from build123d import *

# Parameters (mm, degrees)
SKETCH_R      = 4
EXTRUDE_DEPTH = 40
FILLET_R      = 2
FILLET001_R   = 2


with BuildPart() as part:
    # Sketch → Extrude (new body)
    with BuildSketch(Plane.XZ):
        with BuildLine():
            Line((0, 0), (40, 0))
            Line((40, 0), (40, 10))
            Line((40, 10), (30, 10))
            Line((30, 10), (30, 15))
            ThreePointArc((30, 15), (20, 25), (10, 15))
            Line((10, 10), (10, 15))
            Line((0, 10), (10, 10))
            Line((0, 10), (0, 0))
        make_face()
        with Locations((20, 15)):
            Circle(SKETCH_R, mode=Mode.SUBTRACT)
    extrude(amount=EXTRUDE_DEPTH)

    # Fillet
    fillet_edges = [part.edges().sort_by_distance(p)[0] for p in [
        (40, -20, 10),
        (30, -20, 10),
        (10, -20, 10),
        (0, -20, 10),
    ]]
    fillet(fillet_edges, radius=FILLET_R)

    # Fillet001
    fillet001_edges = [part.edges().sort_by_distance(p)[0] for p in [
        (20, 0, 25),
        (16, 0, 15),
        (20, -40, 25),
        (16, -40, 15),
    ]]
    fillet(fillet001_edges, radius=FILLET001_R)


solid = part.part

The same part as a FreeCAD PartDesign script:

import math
import FreeCAD as App
import Part
import Sketcher

V = App.Vector


def edges_at(feature, points):
    """Names of the edges that pass closest to the given points."""
    edges = feature.Shape.Edges
    near = lambda p: min(range(len(edges)), key=lambda i: edges[i].distToShape(Part.Vertex(*p))[0])
    return sorted({f"Edge{near(p) + 1}" for p in points})

doc = App.newDocument("Part")
body = doc.addObject("PartDesign::Body", "Body")

sketch1 = body.newObject("Sketcher::SketchObject", "Sketch")
sketch1.AttachmentSupport = (doc.getObject("XZ_Plane"), [""])
sketch1.MapMode = "FlatFace"
sketch1.addGeometry(Part.LineSegment(V(0, 0, 0), V(40, 0, 0)), False)
sketch1.addGeometry(Part.LineSegment(V(40, 0, 0), V(40, 10, 0)), False)
sketch1.addGeometry(Part.LineSegment(V(40, 10, 0), V(30, 10, 0)), False)
sketch1.addGeometry(Part.LineSegment(V(30, 10, 0), V(30, 15, 0)), False)
sketch1.addGeometry(Part.ArcOfCircle(Part.Circle(V(20, 15, 0), V(0, 0, 1), 10), math.radians(0), math.radians(180)), False)
sketch1.addGeometry(Part.LineSegment(V(10, 15, 0), V(10, 10, 0)), False)
sketch1.addGeometry(Part.LineSegment(V(10, 10, 0), V(0, 10, 0)), False)
sketch1.addGeometry(Part.LineSegment(V(0, 10, 0), V(0, 0, 0)), False)
sketch1.addGeometry(Part.Circle(V(20, 15, 0), V(0, 0, 1), 4), False)
sketch1.addConstraint(Sketcher.Constraint("Coincident", 0, 2, 1, 1))
sketch1.addConstraint(Sketcher.Constraint("Coincident", 1, 2, 2, 1))
sketch1.addConstraint(Sketcher.Constraint("Coincident", 2, 2, 3, 1))
sketch1.addConstraint(Sketcher.Constraint("Tangent", 3, 2, 4, 1))
sketch1.addConstraint(Sketcher.Constraint("Tangent", 4, 2, 5, 1))
sketch1.addConstraint(Sketcher.Constraint("Coincident", 5, 2, 6, 1))
sketch1.addConstraint(Sketcher.Constraint("Coincident", 6, 2, 7, 1))
sketch1.addConstraint(Sketcher.Constraint("Coincident", 7, 2, 0, 1))
sketch1.addConstraint(Sketcher.Constraint("Horizontal", 0))
sketch1.addConstraint(Sketcher.Constraint("Vertical", 1))
sketch1.addConstraint(Sketcher.Constraint("Horizontal", 2))
sketch1.addConstraint(Sketcher.Constraint("Vertical", 3))
sketch1.addConstraint(Sketcher.Constraint("Vertical", 5))
sketch1.addConstraint(Sketcher.Constraint("Horizontal", 6))
sketch1.addConstraint(Sketcher.Constraint("Vertical", 7))
sketch1.addConstraint(Sketcher.Constraint("Coincident", 7, 2, -1, 1))
sketch1.addConstraint(Sketcher.Constraint("Coincident", 8, 3, 4, 3))
sketch1.addConstraint(Sketcher.Constraint("Horizontal", 2, 2, 5, 2))
sketch1.addConstraint(Sketcher.Constraint("Equal", 2, 6))
sketch1.addConstraint(Sketcher.Constraint("Equal", 6, 1))
sketch1.addConstraint(Sketcher.Constraint("Diameter", 8, 8.0))
sketch1.addConstraint(Sketcher.Constraint("Radius", 4, 10.0))
sketch1.addConstraint(Sketcher.Constraint("DistanceX", 0, 1, 0, 2, 40.0))
sketch1.addConstraint(Sketcher.Constraint("DistanceY", 3, 1, 3, 2, 5.0))
pad1 = body.newObject("PartDesign::Pad", "Pad")
pad1.Profile = sketch1
pad1.Length = 40
doc.recompute()

fillet = body.newObject("PartDesign::Fillet", "Fillet")
fillet.Base = (pad1, edges_at(pad1, [
    (40, -20, 10),
    (30, -20, 10),
    (10, -20, 10),
    (0, -20, 10),
]))
fillet.Radius = 2
doc.recompute()

fillet2 = body.newObject("PartDesign::Fillet", "Fillet001")
fillet2.Base = (fillet, edges_at(fillet, [
    (20, 0, 25),
    (16, 0, 15),
    (20, -40, 25),
    (16, -40, 15),
]))
fillet2.Radius = 2

doc.recompute()
